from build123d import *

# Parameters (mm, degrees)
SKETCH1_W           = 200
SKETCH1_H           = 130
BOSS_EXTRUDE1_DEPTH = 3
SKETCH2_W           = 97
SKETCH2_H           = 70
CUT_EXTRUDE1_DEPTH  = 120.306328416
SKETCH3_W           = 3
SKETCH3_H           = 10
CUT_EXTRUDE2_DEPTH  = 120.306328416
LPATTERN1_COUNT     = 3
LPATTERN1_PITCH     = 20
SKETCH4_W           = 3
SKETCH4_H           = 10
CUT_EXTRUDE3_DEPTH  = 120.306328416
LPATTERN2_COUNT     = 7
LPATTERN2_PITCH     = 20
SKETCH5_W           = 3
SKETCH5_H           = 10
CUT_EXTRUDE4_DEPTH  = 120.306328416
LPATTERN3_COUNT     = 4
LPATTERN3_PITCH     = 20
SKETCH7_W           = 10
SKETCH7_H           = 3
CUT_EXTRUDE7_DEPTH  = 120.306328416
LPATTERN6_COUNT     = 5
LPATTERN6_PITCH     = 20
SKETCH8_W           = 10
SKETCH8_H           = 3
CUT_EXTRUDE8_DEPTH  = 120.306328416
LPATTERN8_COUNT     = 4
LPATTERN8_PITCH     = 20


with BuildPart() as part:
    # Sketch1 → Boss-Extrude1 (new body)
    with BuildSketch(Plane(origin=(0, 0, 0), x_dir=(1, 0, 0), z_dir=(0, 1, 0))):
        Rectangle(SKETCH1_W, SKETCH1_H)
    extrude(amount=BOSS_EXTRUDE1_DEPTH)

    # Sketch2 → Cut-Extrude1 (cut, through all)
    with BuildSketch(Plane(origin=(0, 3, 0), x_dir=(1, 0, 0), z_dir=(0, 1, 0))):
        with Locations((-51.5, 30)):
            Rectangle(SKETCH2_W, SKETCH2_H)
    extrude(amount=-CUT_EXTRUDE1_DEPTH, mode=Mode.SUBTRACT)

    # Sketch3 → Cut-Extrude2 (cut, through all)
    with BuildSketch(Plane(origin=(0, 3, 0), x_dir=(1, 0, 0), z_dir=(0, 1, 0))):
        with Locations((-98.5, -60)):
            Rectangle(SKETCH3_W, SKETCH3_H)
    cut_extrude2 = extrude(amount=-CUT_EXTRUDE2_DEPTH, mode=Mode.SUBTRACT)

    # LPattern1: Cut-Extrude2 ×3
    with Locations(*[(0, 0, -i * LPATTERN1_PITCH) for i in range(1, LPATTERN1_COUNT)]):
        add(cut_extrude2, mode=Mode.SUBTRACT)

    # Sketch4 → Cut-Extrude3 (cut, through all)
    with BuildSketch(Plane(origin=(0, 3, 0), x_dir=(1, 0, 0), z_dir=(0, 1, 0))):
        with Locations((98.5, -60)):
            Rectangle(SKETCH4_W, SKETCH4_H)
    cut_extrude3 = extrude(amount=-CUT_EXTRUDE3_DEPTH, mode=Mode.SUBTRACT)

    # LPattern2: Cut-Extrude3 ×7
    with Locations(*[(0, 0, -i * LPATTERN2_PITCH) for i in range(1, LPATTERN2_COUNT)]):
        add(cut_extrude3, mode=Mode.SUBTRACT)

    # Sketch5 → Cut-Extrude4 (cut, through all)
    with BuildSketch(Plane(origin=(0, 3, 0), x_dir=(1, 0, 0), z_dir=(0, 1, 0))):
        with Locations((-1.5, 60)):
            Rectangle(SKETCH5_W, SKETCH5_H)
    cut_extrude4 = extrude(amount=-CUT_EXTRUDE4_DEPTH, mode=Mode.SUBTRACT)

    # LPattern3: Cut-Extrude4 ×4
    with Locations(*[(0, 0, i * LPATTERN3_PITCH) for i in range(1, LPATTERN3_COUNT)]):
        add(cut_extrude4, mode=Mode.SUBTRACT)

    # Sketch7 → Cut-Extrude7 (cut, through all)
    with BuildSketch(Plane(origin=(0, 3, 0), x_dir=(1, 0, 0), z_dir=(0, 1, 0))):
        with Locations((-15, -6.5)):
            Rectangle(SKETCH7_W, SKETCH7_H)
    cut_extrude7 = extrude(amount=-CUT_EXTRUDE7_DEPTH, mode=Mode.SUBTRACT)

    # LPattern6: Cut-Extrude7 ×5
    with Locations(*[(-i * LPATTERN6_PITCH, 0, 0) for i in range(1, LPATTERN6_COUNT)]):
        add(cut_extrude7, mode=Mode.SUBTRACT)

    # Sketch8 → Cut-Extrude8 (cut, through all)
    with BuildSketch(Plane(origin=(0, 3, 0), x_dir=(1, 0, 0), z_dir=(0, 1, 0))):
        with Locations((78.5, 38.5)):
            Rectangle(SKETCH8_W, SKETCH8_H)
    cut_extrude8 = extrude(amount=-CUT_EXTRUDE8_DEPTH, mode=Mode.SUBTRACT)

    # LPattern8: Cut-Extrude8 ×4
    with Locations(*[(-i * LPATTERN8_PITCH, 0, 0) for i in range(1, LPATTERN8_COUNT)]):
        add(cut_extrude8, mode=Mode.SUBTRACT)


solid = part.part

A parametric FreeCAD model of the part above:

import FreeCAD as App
import Part
import Sketcher
from FreeCAD import Vector


def add_polygon(sketch, points):
    """Adds a closed chain of lines whose ends are joined by coincident constraints."""
    first, n = sketch.GeometryCount, len(points)
    for a, b in zip(points, points[1:] + points[:1]):
        sketch.addGeometry(Part.LineSegment(App.Vector(*a, 0), App.Vector(*b, 0)), False)
    for i in range(n):
        sketch.addConstraint(Sketcher.Constraint("Coincident", first + i, 2, first + (i + 1) % n, 1))

doc = App.newDocument("Part")
params = doc.addObject("Spreadsheet::Sheet", "Params")
for row, (alias, value) in enumerate([
    ("sketch1_width", "200 mm"),
    ("sketch1_height", "130 mm"),
    ("pad1_length", "3 mm"),
    ("sketch2_width", "97 mm"),
    ("sketch2_height", "70 mm"),
    ("sketch3_width", "3 mm"),
    ("sketch3_height", "10 mm"),
    ("linearpattern_pitch", "20 mm"),
    ("sketch4_width", "3 mm"),
    ("sketch4_height", "10 mm"),
    ("linearpattern2_pitch", "20 mm"),
    ("sketch5_width", "3 mm"),
    ("sketch5_height", "10 mm"),
    ("linearpattern3_pitch", "20 mm"),
    ("sketch6_width", "10 mm"),
    ("sketch6_height", "3 mm"),
    ("linearpattern4_pitch", "20 mm"),
    ("sketch7_width", "10 mm"),
    ("sketch7_height", "3 mm"),
    ("linearpattern5_pitch", "20 mm"),
], start=1):
    params.set(f"A{row}", alias)
    params.set(f"B{row}", "=" + value)
    params.setAlias(f"B{row}", alias)

body = doc.addObject("PartDesign::Body", "Body")

sketch1 = body.newObject("Sketcher::SketchObject", "Sketch")
sketch1.AttachmentSupport = (doc.getObject("XZ_Plane"), [""])
sketch1.MapMode = "FlatFace"
add_polygon(sketch1, [(-100, -65), (-100, 65), (100, 65), (100, -65)])
sketch1.addConstraint(Sketcher.Constraint("Vertical", 0))
sketch1.addConstraint(Sketcher.Constraint("Horizontal", 1))
sketch1.addConstraint(Sketcher.Constraint("Vertical", 2))
sketch1.addConstraint(Sketcher.Constraint("Horizontal", 3))
sketch1.addConstraint(Sketcher.Constraint("Symmetric", 0, 2, 2, 2, -1, 1))
sketch1.addConstraint(Sketcher.Constraint("DistanceX", 1, 1, 1, 2, 200.0))
sketch1.addConstraint(Sketcher.Constraint("DistanceY", 0, 1, 0, 2, 130.0))
sketch1.setExpression("Constraints[9]", "Params.sketch1_width")
sketch1.setExpression("Constraints[10]", "Params.sketch1_height")
pad1 = body.newObject("PartDesign::Pad", "Pad")
pad1.Profile = sketch1
pad1.setExpression("Length", "Params.pad1_length")
pad1.Reversed = True

sketch2 = body.newObject("Sketcher::SketchObject", "Sketch001")
sketch2.AttachmentSupport = (doc.getObject("XZ_Plane"), [""])
sketch2.MapMode = "FlatFace"
sketch2.AttachmentOffset = App.Placement(Vector(0, 0, -3), App.Rotation())
add_polygon(sketch2, [(-100, -65), (-100, 5), (-3, 5), (-3, -65)])
sketch2.addConstraint(Sketcher.Constraint("Vertical", 0))
sketch2.addConstraint(Sketcher.Constraint("Horizontal", 1))
sketch2.addConstraint(Sketcher.Constraint("Vertical", 2))
sketch2.addConstraint(Sketcher.Constraint("Horizontal", 3))
sketch2.addConstraint(Sketcher.Constraint("DistanceX", 1, 1, 1, 2, 97.0))
sketch2.addConstraint(Sketcher.Constraint("DistanceY", 0, 1, 0, 2, 70.0))
sketch2.addConstraint(Sketcher.Constraint("DistanceX", 0, 2, -1, 1, 100.0))
sketch2.addConstraint(Sketcher.Constraint("DistanceY", -1, 1, 0, 2, 5.0))
sketch2.setExpression("Constraints[8]", "Params.sketch2_width")
sketch2.setExpression("Constraints[9]", "Params.sketch2_height")
pocket1 = body.newObject("PartDesign::Pocket", "Pocket")
pocket1.Profile = sketch2
pocket1.Type = "ThroughAll"
pocket1.Reversed = True

sketch3 = body.newObject("Sketcher::SketchObject", "Sketch002")
sketch3.AttachmentSupport = (doc.getObject("XZ_Plane"), [""])
sketch3.MapMode = "FlatFace"
sketch3.AttachmentOffset = App.Placement(Vector(0, 0, -3), App.Rotation())
add_polygon(sketch3, [(-100, 55), (-100, 65), (-97, 65), (-97, 55)])
sketch3.addConstraint(Sketcher.Constraint("Vertical", 0))
sketch3.addConstraint(Sketcher.Constraint("Horizontal", 1))
sketch3.addConstraint(Sketcher.Constraint("Vertical", 2))
sketch3.addConstraint(Sketcher.Constraint("Horizontal", 3))
sketch3.addConstraint(Sketcher.Constraint("DistanceX", 1, 1, 1, 2, 3.0))
sketch3.addConstraint(Sketcher.Constraint("DistanceY", 0, 1, 0, 2, 10.0))
sketch3.addConstraint(Sketcher.Constraint("DistanceX", 0, 2, -1, 1, 100.0))
sketch3.addConstraint(Sketcher.Constraint("DistanceY", -1, 1, 0, 2, 65.0))
sketch3.setExpression("Constraints[8]", "Params.sketch3_width")
sketch3.setExpression("Constraints[9]", "Params.sketch3_height")
pocket2 = body.newObject("PartDesign::Pocket", "Pocket001")
pocket2.Profile = sketch3
pocket2.Type = "ThroughAll"
pocket2.Reversed = True
doc.recompute()

linearpattern = body.newObject("PartDesign::LinearPattern", "LinearPattern")
linearpattern.Originals = [pocket2]
linearpattern.Direction = (doc.getObject("Z_Axis"), [""])
linearpattern.Mode = "offset"
linearpattern.setExpression("Offset", "Params.linearpattern_pitch")
linearpattern.Occurrences = 3
linearpattern.Reversed = True
body.Tip = linearpattern

sketch4 = body.newObject("Sketcher::SketchObject", "Sketch003")
sketch4.AttachmentSupport = (doc.getObject("XZ_Plane"), [""])
sketch4.MapMode = "FlatFace"
sketch4.AttachmentOffset = App.Placement(Vector(0, 0, -3), App.Rotation())
add_polygon(sketch4, [(97, 55), (97, 65), (100, 65), (100, 55)])
sketch4.addConstraint(Sketcher.Constraint("Vertical", 0))
sketch4.addConstraint(Sketcher.Constraint("Horizontal", 1))
sketch4.addConstraint(Sketcher.Constraint("Vertical", 2))
sketch4.addConstraint(Sketcher.Constraint("Horizontal", 3))
sketch4.addConstraint(Sketcher.Constraint("DistanceX", 1, 1, 1, 2, 3.0))
sketch4.addConstraint(Sketcher.Constraint("DistanceY", 0, 1, 0, 2, 10.0))
sketch4.addConstraint(Sketcher.Constraint("DistanceX", -1, 1, 0, 2, 97.0))
sketch4.addConstraint(Sketcher.Constraint("DistanceY", -1, 1, 0, 2, 65.0))
sketch4.setExpression("Constraints[8]", "Params.sketch4_width")
sketch4.setExpression("Constraints[9]", "Params.sketch4_height")
pocket3 = body.newObject("PartDesign::Pocket", "Pocket002")
pocket3.Profile = sketch4
pocket3.Type = "ThroughAll"
pocket3.Reversed = True
doc.recompute()

linearpattern2 = body.newObject("PartDesign::LinearPattern", "LinearPattern001")
linearpattern2.Originals = [pocket3]
linearpattern2.Direction = (doc.getObject("Z_Axis"), [""])
linearpattern2.Mode = "offset"
linearpattern2.setExpression("Offset", "Params.linearpattern2_pitch")
linearpattern2.Occurrences = 7
linearpattern2.Reversed = True
body.Tip = linearpattern2

sketch5 = body.newObject("Sketcher::SketchObject", "Sketch004")
sketch5.AttachmentSupport = (doc.getObject("XZ_Plane"), [""])
sketch5.MapMode = "FlatFace"
sketch5.AttachmentOffset = App.Placement(Vector(0, 0, -3), App.Rotation())
add_polygon(sketch5, [(-3, -65), (-3, -55), (0, -55), (0, -65)])
sketch5.addConstraint(Sketcher.Constraint("Vertical", 0))
sketch5.addConstraint(Sketcher.Constraint("Horizontal", 1))
sketch5.addConstraint(Sketcher.Constraint("Vertical", 2))
sketch5.addConstraint(Sketcher.Constraint("Horizontal", 3))
sketch5.addConstraint(Sketcher.Constraint("PointOnObject", 1, 2, -2))
sketch5.addConstraint(Sketcher.Constraint("DistanceX", 1, 1, 1, 2, 3.0))
sketch5.addConstraint(Sketcher.Constraint("DistanceY", 0, 1, 0, 2, 10.0))
sketch5.addConstraint(Sketcher.Constraint("DistanceY", 0, 2, -1, 1, 55.0))
sketch5.setExpression("Constraints[9]", "Params.sketch5_width")
sketch5.setExpression("Constraints[10]", "Params.sketch5_height")
pocket4 = body.newObject("PartDesign::Pocket", "Pocket003")
pocket4.Profile = sketch5
pocket4.Type = "ThroughAll"
pocket4.Reversed = True
doc.recompute()

linearpattern3 = body.newObject("PartDesign::LinearPattern", "LinearPattern002")
linearpattern3.Originals = [pocket4]
linearpattern3.Direction = (doc.getObject("Z_Axis"), [""])
linearpattern3.Mode = "offset"
linearpattern3.setExpression("Offset", "Params.linearpattern3_pitch")
linearpattern3.Occurrences = 4
body.Tip = linearpattern3

sketch6 = body.newObject("Sketcher::SketchObject", "Sketch005")
sketch6.AttachmentSupport = (doc.getObject("XZ_Plane"), [""])
sketch6.MapMode = "FlatFace"
sketch6.AttachmentOffset = App.Placement(Vector(0, 0, -3), App.Rotation())
add_polygon(sketch6, [(-20, 5), (-20, 8), (-10, 8), (-10, 5)])
sketch6.addConstraint(Sketcher.Constraint("Vertical", 0))
sketch6.addConstraint(Sketcher.Constraint("Horizontal", 1))
sketch6.addConstraint(Sketcher.Constraint("Vertical", 2))
sketch6.addConstraint(Sketcher.Constraint("Horizontal", 3))
sketch6.addConstraint(Sketcher.Constraint("DistanceX", 1, 1, 1, 2, 10.0))
sketch6.addConstraint(Sketcher.Constraint("DistanceY", 0, 1, 0, 2, 3.0))
sketch6.addConstraint(Sketcher.Constraint("DistanceX", 0, 2, -1, 1, 20.0))
sketch6.addConstraint(Sketcher.Constraint("DistanceY", -1, 1, 0, 2, 8.0))
sketch6.setExpression("Constraints[8]", "Params.sketch6_width")
sketch6.setExpression("Constraints[9]", "Params.sketch6_height")
pocket5 = body.newObject("PartDesign::Pocket", "Pocket004")
pocket5.Profile = sketch6
pocket5.Type = "ThroughAll"
pocket5.Reversed = True
doc.recompute()

linearpattern4 = body.newObject("PartDesign::LinearPattern", "LinearPattern003")
linearpattern4.Originals = [pocket5]
linearpattern4.Direction = (doc.getObject("X_Axis"), [""])
linearpattern4.Mode = "offset"
linearpattern4.setExpression("Offset", "Params.linearpattern4_pitch")
linearpattern4.Occurrences = 5
linearpattern4.Reversed = True
body.Tip = linearpattern4

sketch7 = body.newObject("Sketcher::SketchObject", "Sketch006")
sketch7.AttachmentSupport = (doc.getObject("XZ_Plane"), [""])
sketch7.MapMode = "FlatFace"
sketch7.AttachmentOffset = App.Placement(Vector(0, 0, -3), App.Rotation())
add_polygon(sketch7, [(73.5, -40), (73.5, -37), (83.5, -37), (83.5, -40)])
sketch7.addConstraint(Sketcher.Constraint("Vertical", 0))
sketch7.addConstraint(Sketcher.Constraint("Horizontal", 1))
sketch7.addConstraint(Sketcher.Constraint("Vertical", 2))
sketch7.addConstraint(Sketcher.Constraint("Horizontal", 3))
sketch7.addConstraint(Sketcher.Constraint("DistanceX", 1, 1, 1, 2, 10.0))
sketch7.addConstraint(Sketcher.Constraint("DistanceY", 0, 1, 0, 2, 3.0))
sketch7.addConstraint(Sketcher.Constraint("DistanceY", 0, 2, -1, 1, 37.0))
sketch7.addConstraint(Sketcher.Constraint("DistanceX", -1, 1, 0, 2, 73.5))
sketch7.setExpression("Constraints[8]", "Params.sketch7_width")
sketch7.setExpression("Constraints[9]", "Params.sketch7_height")
pocket6 = body.newObject("PartDesign::Pocket", "Pocket005")
pocket6.Profile = sketch7
pocket6.Type = "ThroughAll"
pocket6.Reversed = True
doc.recompute()

linearpattern5 = body.newObject("PartDesign::LinearPattern", "LinearPattern004")
linearpattern5.Originals = [pocket6]
linearpattern5.Direction = (doc.getObject("X_Axis"), [""])
linearpattern5.Mode = "offset"
linearpattern5.setExpression("Offset", "Params.linearpattern5_pitch")
linearpattern5.Occurrences = 4
linearpattern5.Reversed = True
body.Tip = linearpattern5

doc.recompute()
